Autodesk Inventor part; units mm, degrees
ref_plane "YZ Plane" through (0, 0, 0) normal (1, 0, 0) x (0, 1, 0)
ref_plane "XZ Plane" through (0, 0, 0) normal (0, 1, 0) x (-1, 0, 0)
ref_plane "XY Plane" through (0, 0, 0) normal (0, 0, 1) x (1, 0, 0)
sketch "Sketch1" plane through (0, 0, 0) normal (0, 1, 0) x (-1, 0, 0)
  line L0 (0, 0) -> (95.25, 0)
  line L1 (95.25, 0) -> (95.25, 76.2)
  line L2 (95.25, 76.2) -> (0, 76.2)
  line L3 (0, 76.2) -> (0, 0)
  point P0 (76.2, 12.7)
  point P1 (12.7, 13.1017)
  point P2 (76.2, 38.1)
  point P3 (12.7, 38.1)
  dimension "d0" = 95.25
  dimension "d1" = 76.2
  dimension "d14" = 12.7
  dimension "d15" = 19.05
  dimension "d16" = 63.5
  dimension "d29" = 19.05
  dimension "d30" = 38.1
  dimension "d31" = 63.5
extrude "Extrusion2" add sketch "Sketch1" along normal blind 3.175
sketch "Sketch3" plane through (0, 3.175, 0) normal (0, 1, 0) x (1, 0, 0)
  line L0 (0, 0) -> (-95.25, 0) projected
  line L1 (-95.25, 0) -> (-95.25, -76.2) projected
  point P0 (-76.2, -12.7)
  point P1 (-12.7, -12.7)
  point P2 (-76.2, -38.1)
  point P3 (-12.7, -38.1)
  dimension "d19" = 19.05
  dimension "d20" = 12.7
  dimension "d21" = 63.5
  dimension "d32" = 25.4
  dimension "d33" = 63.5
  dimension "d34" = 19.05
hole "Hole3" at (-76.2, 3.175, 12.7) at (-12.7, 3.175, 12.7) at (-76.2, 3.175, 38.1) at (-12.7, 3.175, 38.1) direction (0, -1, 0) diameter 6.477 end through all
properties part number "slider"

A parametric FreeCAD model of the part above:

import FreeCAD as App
import Part
import Sketcher
Q = App.Units.Quantity

doc = App.newDocument("Part")
body = doc.addObject("PartDesign::Body", "Body")

sketch1 = body.newObject("Sketcher::SketchObject", "Sketch")
sketch1.AttachmentSupport = (doc.getObject("XZ_Plane"), [""])
sketch1.MapMode = "FlatFace"
sketch1.addGeometry([
    Part.LineSegment(App.Vector(0, 76, 0), App.Vector(0, 0, 0)),
    Part.LineSegment(App.Vector(0, 0, 0), App.Vector(-95, 0, 0)),
    Part.LineSegment(App.Vector(-95, 0, 0), App.Vector(-95, 76, 0)),
    Part.LineSegment(App.Vector(-95, 76, 0), App.Vector(0, 76, 0)),
], False)
sketch1.addConstraint([
    Sketcher.Constraint("Coincident", 0, 2, 1, 1),
    Sketcher.Constraint("Coincident", 1, 2, 2, 1),
    Sketcher.Constraint("Coincident", 2, 2, 3, 1),
    Sketcher.Constraint("Coincident", 3, 2, 0, 1),
    Sketcher.Constraint("Vertical", 0),
    Sketcher.Constraint("Horizontal", 1),
    Sketcher.Constraint("Vertical", 2),
    Sketcher.Constraint("Horizontal", 3),
    Sketcher.Constraint("Coincident", 0, 2, -1, 1),
    Sketcher.Constraint("DistanceY", 0, 2, 0, 1, Q("3 in")),
    Sketcher.Constraint("DistanceX", 1, 2, 1, 1, Q("3.75 in")),
])
pad1 = body.newObject("PartDesign::Pad", "Pad")
pad1.Profile = sketch1
pad1.Length = Q("0.125 in")
pad1.Reversed = True

sketch2 = body.newObject("Sketcher::SketchObject", "Sketch001")
sketch2.AttachmentSupport = (doc.getObject("XZ_Plane"), [""])
sketch2.MapMode = "FlatFace"
sketch2.AttachmentOffset = App.Placement(App.Vector(0, 0, -0.125 * 25.4), App.Rotation())
sketch2.addGeometry([
    Part.Circle(App.Vector(-76.2, 12.7, 0), App.Vector(0, 0, 1), 3.2),
    Part.Circle(App.Vector(-12.7, 12.7, 0), App.Vector(0, 0, 1), 3.2),
    Part.Circle(App.Vector(-76.2, 38.1, 0), App.Vector(0, 0, 1), 3.2),
    Part.Circle(App.Vector(-12.7, 38.1, 0), App.Vector(0, 0, 1), 3.2),
], False)
sketch2.addConstraint([
    Sketcher.Constraint("Equal", 0, 1),
    Sketcher.Constraint("Equal", 1, 2),
    Sketcher.Constraint("Equal", 2, 3),
    Sketcher.Constraint("Horizontal", 0, 3, 1, 3),
    Sketcher.Constraint("Horizontal", 2, 3, 3, 3),
    Sketcher.Constraint("Vertical", 0, 3, 2, 3),
    Sketcher.Constraint("Vertical", 1, 3, 3, 3),
    Sketcher.Constraint("Diameter", 0, Q("0.255 in")),
    Sketcher.Constraint("DistanceX", 0, 3, -1, 1, Q("3 in")),
    Sketcher.Constraint("DistanceY", 0, 3, 2, 3, Q("1 in")),
    Sketcher.Constraint("DistanceY", -1, 1, 0, 3, Q("0.5 in")),
    Sketcher.Constraint("DistanceX", 1, 3, -1, 1, Q("0.5 in")),
])
doc.recompute()
hole = body.newObject("PartDesign::Hole", "Hole")
hole.Profile = sketch2
hole.ThreadType = "None"
hole.Diameter = Q("0.255 in")
hole.DepthType = "ThroughAll"
hole.Reversed = True

doc.recompute()
